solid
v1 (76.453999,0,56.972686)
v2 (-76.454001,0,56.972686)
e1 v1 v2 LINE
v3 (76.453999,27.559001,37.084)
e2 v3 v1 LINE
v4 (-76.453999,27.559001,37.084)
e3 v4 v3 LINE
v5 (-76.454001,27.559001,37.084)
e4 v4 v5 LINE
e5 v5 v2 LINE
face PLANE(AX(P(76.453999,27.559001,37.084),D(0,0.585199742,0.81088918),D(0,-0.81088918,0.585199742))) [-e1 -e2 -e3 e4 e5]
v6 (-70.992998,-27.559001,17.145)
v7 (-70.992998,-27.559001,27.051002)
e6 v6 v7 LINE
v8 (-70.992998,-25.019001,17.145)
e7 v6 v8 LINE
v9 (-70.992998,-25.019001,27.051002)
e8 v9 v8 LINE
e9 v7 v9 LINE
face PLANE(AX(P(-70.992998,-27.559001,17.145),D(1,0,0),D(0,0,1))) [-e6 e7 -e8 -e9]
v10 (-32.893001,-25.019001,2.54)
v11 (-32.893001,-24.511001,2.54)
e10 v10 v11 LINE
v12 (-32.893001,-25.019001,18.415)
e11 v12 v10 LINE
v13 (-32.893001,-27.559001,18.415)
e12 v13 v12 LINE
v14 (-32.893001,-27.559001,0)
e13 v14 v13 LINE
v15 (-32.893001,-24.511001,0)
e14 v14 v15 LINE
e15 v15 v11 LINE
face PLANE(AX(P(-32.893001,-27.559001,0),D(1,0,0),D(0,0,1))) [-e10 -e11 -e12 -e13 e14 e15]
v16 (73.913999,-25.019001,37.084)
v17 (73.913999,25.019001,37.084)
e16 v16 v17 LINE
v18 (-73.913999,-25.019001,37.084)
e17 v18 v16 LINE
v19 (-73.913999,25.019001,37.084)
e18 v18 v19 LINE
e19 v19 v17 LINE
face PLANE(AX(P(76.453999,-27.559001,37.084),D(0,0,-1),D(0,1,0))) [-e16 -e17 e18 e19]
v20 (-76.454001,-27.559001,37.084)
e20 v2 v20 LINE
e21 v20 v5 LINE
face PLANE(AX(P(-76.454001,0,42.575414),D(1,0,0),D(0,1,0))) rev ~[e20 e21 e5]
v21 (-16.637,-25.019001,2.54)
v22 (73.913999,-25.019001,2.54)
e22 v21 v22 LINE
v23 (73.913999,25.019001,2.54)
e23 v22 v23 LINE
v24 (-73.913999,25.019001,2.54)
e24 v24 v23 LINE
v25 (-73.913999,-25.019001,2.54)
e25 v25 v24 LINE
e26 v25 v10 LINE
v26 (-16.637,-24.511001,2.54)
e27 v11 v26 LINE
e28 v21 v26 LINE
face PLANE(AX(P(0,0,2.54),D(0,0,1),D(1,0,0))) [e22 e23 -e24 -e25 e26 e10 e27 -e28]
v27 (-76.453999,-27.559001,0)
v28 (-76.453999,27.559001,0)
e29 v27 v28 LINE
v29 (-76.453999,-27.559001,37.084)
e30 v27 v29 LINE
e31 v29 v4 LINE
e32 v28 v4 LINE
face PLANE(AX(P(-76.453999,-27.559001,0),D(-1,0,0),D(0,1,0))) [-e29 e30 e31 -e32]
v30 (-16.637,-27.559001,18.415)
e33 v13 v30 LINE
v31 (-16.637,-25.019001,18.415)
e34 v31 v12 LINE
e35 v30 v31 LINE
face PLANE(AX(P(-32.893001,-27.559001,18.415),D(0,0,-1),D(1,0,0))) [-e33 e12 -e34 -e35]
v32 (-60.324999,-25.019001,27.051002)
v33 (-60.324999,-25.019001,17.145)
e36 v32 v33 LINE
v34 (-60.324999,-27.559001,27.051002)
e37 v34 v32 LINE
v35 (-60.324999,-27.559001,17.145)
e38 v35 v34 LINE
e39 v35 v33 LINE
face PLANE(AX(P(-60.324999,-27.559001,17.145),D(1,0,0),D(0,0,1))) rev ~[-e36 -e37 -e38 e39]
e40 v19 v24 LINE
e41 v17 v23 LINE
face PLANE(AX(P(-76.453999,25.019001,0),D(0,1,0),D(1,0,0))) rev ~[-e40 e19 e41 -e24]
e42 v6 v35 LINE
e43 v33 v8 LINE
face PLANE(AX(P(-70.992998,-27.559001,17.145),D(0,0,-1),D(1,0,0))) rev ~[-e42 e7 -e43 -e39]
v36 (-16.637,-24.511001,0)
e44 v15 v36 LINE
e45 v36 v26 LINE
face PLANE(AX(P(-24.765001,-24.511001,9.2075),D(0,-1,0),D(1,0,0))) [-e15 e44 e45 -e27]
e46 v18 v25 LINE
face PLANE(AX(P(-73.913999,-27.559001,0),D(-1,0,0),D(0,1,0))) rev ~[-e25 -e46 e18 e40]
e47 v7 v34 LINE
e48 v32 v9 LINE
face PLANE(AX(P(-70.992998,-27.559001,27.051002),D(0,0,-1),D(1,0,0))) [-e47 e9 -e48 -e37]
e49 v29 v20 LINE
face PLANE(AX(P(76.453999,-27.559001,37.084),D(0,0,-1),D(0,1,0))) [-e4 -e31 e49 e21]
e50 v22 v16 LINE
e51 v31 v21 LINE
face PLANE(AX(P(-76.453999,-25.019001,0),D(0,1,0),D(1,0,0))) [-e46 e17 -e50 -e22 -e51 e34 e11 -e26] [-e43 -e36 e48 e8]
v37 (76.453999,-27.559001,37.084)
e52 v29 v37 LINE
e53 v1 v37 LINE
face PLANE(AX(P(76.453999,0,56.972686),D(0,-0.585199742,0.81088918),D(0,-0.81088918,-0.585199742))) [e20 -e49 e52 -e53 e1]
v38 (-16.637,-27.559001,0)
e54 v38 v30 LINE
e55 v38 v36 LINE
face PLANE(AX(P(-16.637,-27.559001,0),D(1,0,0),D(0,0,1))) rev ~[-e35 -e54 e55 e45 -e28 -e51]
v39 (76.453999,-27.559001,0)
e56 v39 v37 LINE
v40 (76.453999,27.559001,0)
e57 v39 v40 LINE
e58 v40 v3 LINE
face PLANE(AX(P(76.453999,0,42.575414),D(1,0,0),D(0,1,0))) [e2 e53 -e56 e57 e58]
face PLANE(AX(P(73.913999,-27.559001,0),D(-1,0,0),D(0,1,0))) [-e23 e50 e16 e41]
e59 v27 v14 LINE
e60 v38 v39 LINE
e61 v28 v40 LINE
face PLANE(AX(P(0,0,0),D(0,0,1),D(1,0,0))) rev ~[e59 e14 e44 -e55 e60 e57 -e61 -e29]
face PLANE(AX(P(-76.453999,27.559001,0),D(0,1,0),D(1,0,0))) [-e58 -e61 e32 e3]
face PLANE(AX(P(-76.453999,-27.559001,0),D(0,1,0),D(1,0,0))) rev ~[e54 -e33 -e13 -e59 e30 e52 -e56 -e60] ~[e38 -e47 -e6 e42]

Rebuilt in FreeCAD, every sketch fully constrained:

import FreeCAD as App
import Part
import Sketcher
from FreeCAD import Vector
Q = App.Units.Quantity


def faces_at(feature, points):
    """Names of the faces that lie closest to the given points."""
    faces = feature.Shape.Faces
    near = lambda p: min(range(len(faces)), key=lambda i: faces[i].distToShape(Part.Vertex(*p))[0])
    return sorted({f"Face{near(p) + 1}" for p in points})


def add_polygon(sketch, points):
    """Adds a closed chain of lines whose ends are joined by coincident constraints."""
    first, n = sketch.GeometryCount, len(points)
    for a, b in zip(points, points[1:] + points[:1]):
        sketch.addGeometry(Part.LineSegment(App.Vector(*a, 0), App.Vector(*b, 0)), False)
    for i in range(n):
        sketch.addConstraint(Sketcher.Constraint("Coincident", first + i, 2, first + (i + 1) % n, 1))

doc = App.newDocument("Part")
params = doc.addObject("Spreadsheet::Sheet", "Params")
for row, (alias, value) in enumerate([
    ("sketch1_width", "6.0199999 in"),
    ("sketch1_height", "2.1700001 in"),
    ("pad1_length", "1.46 in"),
    ("thickness_wall", "0.1 in"),
    ("sketch2_width", "0.64 in"),
    ("sketch2_height", "0.725 in"),
    ("pocket1_length", "0.12 in"),
    ("sketch3_width", "2.1700001 in"),
    ("pad2_length", "6.02 in"),
    ("sketch4_width", "0.42 in"),
    ("sketch4_height", "0.3900001 in"),
    ("pocket2_length", "0.11 in"),
], start=1):
    params.set(f"A{row}", alias)
    params.set(f"B{row}", "=" + value)
    params.setAlias(f"B{row}", alias)

body = doc.addObject("PartDesign::Body", "Body")

sketch1 = body.newObject("Sketcher::SketchObject", "Sketch")
sketch1.AttachmentSupport = (doc.getObject("XY_Plane"), [""])
sketch1.MapMode = "FlatFace"
add_polygon(sketch1, [(-76.453999, 27.559001), (-76.453999, -27.559001), (76.453999, -27.559001), (76.453999, 27.559001)])
sketch1.addConstraint([
    Sketcher.Constraint("Vertical", 0),
    Sketcher.Constraint("Horizontal", 1),
    Sketcher.Constraint("Vertical", 2),
    Sketcher.Constraint("Horizontal", 3),
    Sketcher.Constraint("Symmetric", 0, 2, 2, 2, -1, 1),
    Sketcher.Constraint("DistanceX", 1, 1, 1, 2, Q("6.0199999 in")),
    Sketcher.Constraint("DistanceY", 0, 2, 0, 1, Q("2.1700001 in")),
])
sketch1.setExpression("Constraints[9]", "Params.sketch1_width")
sketch1.setExpression("Constraints[10]", "Params.sketch1_height")
pad1 = body.newObject("PartDesign::Pad", "Pad")
pad1.Profile = sketch1
pad1.setExpression("Length", "Params.pad1_length")
doc.recompute()

thickness = body.newObject("PartDesign::Thickness", "Thickness")
thickness.Base = (pad1, faces_at(pad1, [(0, 0, 37.084)]))
thickness.setExpression("Value", "Params.thickness_wall")
thickness.Reversed = True
thickness.Join = "Arc"

sketch2 = body.newObject("Sketcher::SketchObject", "Sketch001")
sketch2.AttachmentSupport = (doc.getObject("XZ_Plane"), [""])
sketch2.MapMode = "FlatFace"
sketch2.AttachmentOffset = App.Placement(Vector(0, 0, 1.085 * 25.4), App.Rotation())
add_polygon(sketch2, [(-32.893001, 18.415), (-32.893001, 0), (-16.637, 0), (-16.637, 18.415)])
sketch2.addConstraint([
    Sketcher.Constraint("Vertical", 0),
    Sketcher.Constraint("Horizontal", 1),
    Sketcher.Constraint("Vertical", 2),
    Sketcher.Constraint("Horizontal", 3),
    Sketcher.Constraint("PointOnObject", 0, 2, -1),
    Sketcher.Constraint("DistanceX", 1, 1, 1, 2, Q("0.64 in")),
    Sketcher.Constraint("DistanceY", 0, 2, 0, 1, Q("0.725 in")),
    Sketcher.Constraint("DistanceX", 0, 2, -1, 1, Q("1.2950001 in")),
])
sketch2.setExpression("Constraints[9]", "Params.sketch2_width")
sketch2.setExpression("Constraints[10]", "Params.sketch2_height")
pocket1 = body.newObject("PartDesign::Pocket", "Pocket")
pocket1.Profile = sketch2
pocket1.setExpression("Length", "Params.pocket1_length")

sketch3 = body.newObject("Sketcher::SketchObject", "Sketch002")
sketch3.AttachmentSupport = (doc.getObject("YZ_Plane"), [""])
sketch3.MapMode = "FlatFace"
sketch3.AttachmentOffset = App.Placement(Vector(0, 0, 3.01 * 25.4), App.Rotation())
add_polygon(sketch3, [(27.559001, 37.084), (0, 56.972686), (-27.559001, 37.084)])
sketch3.addConstraint([
    Sketcher.Constraint("Horizontal", 2),
    Sketcher.Constraint("PointOnObject", 0, 2, -2),
    Sketcher.Constraint("Equal", 0, 1),
    Sketcher.Constraint("DistanceX", 2, 1, 2, 2, Q("2.1700001 in")),
    Sketcher.Constraint("DistanceY", -1, 1, 1, 2, Q("1.46 in")),
    Sketcher.Constraint("Distance", 0, Q("33.98615 mm")),
])
sketch3.setExpression("Constraints[6]", "Params.sketch3_width")
pad2 = body.newObject("PartDesign::Pad", "Pad001")
pad2.Profile = sketch3
pad2.setExpression("Length", "Params.pad2_length")
pad2.Reversed = True

sketch4 = body.newObject("Sketcher::SketchObject", "Sketch003")
sketch4.AttachmentSupport = (doc.getObject("XZ_Plane"), [""])
sketch4.MapMode = "FlatFace"
sketch4.AttachmentOffset = App.Placement(Vector(0, 0, 1.085 * 25.4), App.Rotation())
add_polygon(sketch4, [(-70.992998, 27.051002), (-70.992998, 17.145), (-60.324999, 17.145), (-60.324999, 27.051002)])
sketch4.addConstraint([
    Sketcher.Constraint("Vertical", 0),
    Sketcher.Constraint("Horizontal", 1),
    Sketcher.Constraint("Vertical", 2),
    Sketcher.Constraint("Horizontal", 3),
    Sketcher.Constraint("DistanceX", 1, 1, 1, 2, Q("0.42 in")),
    Sketcher.Constraint("DistanceY", 0, 2, 0, 1, Q("0.3900001 in")),
    Sketcher.Constraint("DistanceX", 0, 2, -1, 1, Q("2.7949999 in")),
    Sketcher.Constraint("DistanceY", -1, 1, 0, 2, Q("0.675 in")),
])
sketch4.setExpression("Constraints[8]", "Params.sketch4_width")
sketch4.setExpression("Constraints[9]", "Params.sketch4_height")
pocket2 = body.newObject("PartDesign::Pocket", "Pocket001")
pocket2.Profile = sketch4
pocket2.setExpression("Length", "Params.pocket2_length")

doc.recompute()
